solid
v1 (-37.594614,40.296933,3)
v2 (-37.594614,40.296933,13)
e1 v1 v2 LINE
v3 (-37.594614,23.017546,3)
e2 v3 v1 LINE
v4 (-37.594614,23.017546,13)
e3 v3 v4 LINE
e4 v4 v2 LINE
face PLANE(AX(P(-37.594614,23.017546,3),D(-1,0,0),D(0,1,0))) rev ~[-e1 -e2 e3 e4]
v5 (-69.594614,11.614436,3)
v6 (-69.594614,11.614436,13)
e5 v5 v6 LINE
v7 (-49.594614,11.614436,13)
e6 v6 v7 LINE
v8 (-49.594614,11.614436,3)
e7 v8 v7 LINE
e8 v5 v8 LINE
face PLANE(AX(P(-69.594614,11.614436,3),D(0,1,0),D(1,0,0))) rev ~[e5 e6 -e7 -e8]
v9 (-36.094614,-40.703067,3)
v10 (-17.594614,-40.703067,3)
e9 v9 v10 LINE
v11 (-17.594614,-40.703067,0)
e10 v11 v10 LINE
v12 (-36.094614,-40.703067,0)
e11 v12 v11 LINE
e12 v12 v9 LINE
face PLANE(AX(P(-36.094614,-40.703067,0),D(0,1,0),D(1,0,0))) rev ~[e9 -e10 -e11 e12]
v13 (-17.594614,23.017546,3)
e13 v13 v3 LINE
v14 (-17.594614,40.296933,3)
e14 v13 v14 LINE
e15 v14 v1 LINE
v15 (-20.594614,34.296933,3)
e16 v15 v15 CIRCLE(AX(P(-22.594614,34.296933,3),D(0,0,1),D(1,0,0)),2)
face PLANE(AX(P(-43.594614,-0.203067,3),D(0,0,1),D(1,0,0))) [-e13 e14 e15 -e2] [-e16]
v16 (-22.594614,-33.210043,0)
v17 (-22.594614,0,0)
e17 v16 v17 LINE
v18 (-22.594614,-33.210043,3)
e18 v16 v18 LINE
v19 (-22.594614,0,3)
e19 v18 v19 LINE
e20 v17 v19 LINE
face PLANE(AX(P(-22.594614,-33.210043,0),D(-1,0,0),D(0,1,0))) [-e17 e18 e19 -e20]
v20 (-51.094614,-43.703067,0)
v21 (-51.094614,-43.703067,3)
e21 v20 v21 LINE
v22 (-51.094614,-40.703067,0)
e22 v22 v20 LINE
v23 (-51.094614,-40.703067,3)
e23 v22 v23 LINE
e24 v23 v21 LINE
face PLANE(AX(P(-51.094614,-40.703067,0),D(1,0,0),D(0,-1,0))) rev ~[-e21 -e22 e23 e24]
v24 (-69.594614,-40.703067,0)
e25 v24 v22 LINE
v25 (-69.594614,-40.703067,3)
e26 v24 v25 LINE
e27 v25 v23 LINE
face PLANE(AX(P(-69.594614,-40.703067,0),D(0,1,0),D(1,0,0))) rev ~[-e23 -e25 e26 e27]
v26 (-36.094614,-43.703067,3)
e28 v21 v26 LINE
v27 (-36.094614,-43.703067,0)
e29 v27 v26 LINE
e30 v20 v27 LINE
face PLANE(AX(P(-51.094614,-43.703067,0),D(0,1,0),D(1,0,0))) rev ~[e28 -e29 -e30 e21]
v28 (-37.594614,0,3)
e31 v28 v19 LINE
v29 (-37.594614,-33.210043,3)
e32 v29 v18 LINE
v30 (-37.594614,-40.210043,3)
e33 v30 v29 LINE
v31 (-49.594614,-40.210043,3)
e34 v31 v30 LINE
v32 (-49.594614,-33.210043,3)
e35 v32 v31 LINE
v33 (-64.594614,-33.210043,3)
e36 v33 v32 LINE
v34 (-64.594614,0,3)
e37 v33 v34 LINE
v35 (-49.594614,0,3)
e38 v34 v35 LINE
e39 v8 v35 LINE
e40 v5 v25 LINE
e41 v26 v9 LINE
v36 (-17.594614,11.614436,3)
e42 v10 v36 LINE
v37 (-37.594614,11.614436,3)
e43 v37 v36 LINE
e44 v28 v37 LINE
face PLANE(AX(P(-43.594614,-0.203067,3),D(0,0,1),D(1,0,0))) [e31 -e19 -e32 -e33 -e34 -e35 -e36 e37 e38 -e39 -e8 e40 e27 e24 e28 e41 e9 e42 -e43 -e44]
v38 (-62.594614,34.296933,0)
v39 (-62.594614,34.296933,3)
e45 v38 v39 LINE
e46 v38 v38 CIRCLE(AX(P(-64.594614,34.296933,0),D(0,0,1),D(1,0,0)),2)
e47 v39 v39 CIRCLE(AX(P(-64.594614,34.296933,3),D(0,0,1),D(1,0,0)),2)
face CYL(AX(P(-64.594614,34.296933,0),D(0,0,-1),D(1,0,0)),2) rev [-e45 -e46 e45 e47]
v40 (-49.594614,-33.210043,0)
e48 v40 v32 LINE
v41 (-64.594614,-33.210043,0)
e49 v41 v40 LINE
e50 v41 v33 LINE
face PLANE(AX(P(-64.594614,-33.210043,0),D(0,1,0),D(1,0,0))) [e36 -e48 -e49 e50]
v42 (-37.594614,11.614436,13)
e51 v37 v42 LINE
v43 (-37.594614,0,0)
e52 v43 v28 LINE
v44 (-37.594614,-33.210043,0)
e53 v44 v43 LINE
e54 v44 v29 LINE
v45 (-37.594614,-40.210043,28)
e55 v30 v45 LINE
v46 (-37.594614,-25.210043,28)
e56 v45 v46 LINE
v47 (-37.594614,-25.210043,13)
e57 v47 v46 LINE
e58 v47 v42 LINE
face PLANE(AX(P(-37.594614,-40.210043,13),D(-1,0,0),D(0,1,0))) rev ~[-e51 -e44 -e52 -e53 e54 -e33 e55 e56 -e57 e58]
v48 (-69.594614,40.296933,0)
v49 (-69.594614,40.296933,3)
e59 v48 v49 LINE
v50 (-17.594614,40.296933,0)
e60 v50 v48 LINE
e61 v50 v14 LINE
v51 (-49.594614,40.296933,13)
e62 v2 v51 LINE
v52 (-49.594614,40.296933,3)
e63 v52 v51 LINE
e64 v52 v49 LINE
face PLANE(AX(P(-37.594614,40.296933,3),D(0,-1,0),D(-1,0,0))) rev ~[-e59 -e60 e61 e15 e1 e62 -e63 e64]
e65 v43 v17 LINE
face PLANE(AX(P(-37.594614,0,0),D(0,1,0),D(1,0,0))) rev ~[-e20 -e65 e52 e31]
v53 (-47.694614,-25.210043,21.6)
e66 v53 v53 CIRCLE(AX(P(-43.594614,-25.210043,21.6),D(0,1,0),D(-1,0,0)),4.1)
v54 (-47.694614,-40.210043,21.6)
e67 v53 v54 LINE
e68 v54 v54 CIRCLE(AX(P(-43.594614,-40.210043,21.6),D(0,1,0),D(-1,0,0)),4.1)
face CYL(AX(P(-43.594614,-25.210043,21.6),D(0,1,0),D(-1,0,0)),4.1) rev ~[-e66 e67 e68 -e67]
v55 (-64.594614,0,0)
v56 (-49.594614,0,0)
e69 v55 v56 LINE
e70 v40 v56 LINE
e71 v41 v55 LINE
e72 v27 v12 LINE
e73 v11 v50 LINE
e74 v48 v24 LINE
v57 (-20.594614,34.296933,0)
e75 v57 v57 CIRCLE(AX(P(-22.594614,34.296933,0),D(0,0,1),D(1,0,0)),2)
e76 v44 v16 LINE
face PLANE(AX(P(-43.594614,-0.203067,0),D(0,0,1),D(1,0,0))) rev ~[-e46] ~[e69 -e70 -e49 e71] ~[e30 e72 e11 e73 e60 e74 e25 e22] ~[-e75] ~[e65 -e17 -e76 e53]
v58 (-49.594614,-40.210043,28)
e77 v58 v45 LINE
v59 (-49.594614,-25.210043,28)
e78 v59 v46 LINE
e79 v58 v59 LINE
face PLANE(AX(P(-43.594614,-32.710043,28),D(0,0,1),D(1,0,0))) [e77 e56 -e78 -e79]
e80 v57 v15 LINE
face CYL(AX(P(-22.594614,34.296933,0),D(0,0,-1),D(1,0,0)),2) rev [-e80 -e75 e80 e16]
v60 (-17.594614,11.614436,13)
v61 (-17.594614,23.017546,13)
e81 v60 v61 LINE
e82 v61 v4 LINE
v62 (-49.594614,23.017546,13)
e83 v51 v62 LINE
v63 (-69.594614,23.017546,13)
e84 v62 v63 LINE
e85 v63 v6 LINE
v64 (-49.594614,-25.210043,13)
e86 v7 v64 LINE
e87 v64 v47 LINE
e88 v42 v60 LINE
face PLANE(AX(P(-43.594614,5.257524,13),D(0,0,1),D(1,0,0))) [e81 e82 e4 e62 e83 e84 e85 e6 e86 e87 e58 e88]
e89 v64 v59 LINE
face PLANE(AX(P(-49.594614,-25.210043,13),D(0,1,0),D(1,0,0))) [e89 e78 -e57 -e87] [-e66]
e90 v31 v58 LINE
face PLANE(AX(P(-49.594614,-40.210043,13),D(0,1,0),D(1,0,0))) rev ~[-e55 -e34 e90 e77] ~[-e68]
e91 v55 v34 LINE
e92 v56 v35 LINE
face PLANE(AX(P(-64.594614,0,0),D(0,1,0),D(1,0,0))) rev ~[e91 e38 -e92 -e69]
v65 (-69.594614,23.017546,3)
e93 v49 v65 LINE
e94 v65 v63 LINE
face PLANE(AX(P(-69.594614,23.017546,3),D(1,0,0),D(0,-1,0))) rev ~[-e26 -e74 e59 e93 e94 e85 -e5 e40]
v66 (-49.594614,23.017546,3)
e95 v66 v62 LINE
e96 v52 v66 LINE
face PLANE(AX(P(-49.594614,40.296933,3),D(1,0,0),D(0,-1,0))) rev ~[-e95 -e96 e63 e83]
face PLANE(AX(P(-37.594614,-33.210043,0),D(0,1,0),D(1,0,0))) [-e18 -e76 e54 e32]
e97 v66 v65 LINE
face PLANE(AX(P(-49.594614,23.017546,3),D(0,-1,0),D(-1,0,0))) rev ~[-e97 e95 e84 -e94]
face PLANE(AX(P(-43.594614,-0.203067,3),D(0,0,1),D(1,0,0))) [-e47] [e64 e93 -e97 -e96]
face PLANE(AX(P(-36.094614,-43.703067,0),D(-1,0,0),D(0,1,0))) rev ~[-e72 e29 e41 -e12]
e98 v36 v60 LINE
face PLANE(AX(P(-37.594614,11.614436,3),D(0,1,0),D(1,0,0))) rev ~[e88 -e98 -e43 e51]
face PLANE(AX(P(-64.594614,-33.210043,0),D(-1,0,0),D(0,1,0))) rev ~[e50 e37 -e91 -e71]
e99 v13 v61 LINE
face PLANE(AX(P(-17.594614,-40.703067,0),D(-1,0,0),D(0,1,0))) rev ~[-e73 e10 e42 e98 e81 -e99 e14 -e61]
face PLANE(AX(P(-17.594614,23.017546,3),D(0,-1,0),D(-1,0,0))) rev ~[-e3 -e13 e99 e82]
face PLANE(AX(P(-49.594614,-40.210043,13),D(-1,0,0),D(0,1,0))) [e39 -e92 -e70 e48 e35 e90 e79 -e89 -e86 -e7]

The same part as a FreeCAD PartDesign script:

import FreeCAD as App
import Part
import Sketcher
from FreeCAD import Vector
Q = App.Units.Quantity


def add_polygon(sketch, points):
    """Adds a closed chain of lines whose ends are joined by coincident constraints."""
    first, n = sketch.GeometryCount, len(points)
    for a, b in zip(points, points[1:] + points[:1]):
        sketch.addGeometry(Part.LineSegment(App.Vector(*a, 0), App.Vector(*b, 0)), False)
    for i in range(n):
        sketch.addConstraint(Sketcher.Constraint("Coincident", first + i, 2, first + (i + 1) % n, 1))

doc = App.newDocument("Part")
body = doc.addObject("PartDesign::Body", "Body")

# Sketch on XY plane
sketch1 = body.newObject("Sketcher::SketchObject", "Sketch")
sketch1.AttachmentSupport = (doc.getObject("XY_Plane"), [""])
sketch1.MapMode = "FlatFace"
add_polygon(sketch1, [(-17.6, -40.7), (-17.6, 40.3), (-69.6, 40.3), (-69.6, -40.7), (-51.1, -40.7), (-51.1, -43.7), (-36.1, -43.7), (-36.1, -40.7)])  # lines 0-7
add_polygon(sketch1, [(-49.6, -33.2), (-64.6, -33.2), (-64.6, 0), (-49.6, 0)])  # lines 8-11
add_polygon(sketch1, [(-22.6, -33.2), (-37.6, -33.2), (-37.6, 0), (-22.6, 0)])  # lines 12-15
sketch1.addGeometry(Part.Circle(Vector(-64.6, 34.3, 0), Vector(0, 0, 1), 2), False)  # 16
sketch1.addGeometry(Part.Circle(Vector(-22.6, 34.3, 0), Vector(0, 0, 1), 2), False)  # 17
sketch1.addConstraint([
    Sketcher.Constraint("Vertical", 0),
    Sketcher.Constraint("Horizontal", 1),
    Sketcher.Constraint("Vertical", 2),
    Sketcher.Constraint("Horizontal", 3),
    Sketcher.Constraint("Vertical", 4),
    Sketcher.Constraint("Horizontal", 5),
    Sketcher.Constraint("Vertical", 6),
    Sketcher.Constraint("Horizontal", 7),
    Sketcher.Constraint("Horizontal", 8),
    Sketcher.Constraint("Vertical", 9),
    Sketcher.Constraint("Horizontal", 10),
    Sketcher.Constraint("Vertical", 11),
    Sketcher.Constraint("Horizontal", 12),
    Sketcher.Constraint("Vertical", 13),
    Sketcher.Constraint("Horizontal", 14),
    Sketcher.Constraint("Vertical", 15),
    Sketcher.Constraint("Equal", 16, 17),
    Sketcher.Constraint("PointOnObject", 9, 2, -1),
    Sketcher.Constraint("PointOnObject", 13, 2, -1),
    Sketcher.Constraint("Horizontal", 16, 3, 17, 3),
    Sketcher.Constraint("Horizontal", 3, 2, 6, 2),
    Sketcher.Constraint("Horizontal", 11, 2, 12, 2),
    Sketcher.Constraint("Vertical", 16, 3, 8, 2),
    Sketcher.Constraint("Vertical", 17, 3, 14, 2),
    Sketcher.Constraint("Equal", 3, 7),
    Sketcher.Constraint("Equal", 5, 8),
    Sketcher.Constraint("Equal", 10, 12),
    Sketcher.Constraint("Diameter", 16, Q("4 mm")),
    Sketcher.Constraint("DistanceX", 1, 2, 1, 1, Q("52 mm")),
    Sketcher.Constraint("DistanceX", 5, 1, 5, 2, Q("15 mm")),
    Sketcher.Constraint("DistanceY", 0, 1, 0, 2, Q("81 mm")),
    Sketcher.Constraint("DistanceY", 4, 2, 4, 1, Q("3 mm")),
    Sketcher.Constraint("DistanceX", 16, 3, 17, 3, Q("42 mm")),
    Sketcher.Constraint("DistanceX", 17, 3, 0, 2, Q("5 mm")),
    Sketcher.Constraint("DistanceY", 17, 3, 0, 2, Q("6 mm")),
    Sketcher.Constraint("DistanceY", 9, 1, 9, 2, Q("33.210043 mm")),
    Sketcher.Constraint("DistanceX", 16, 3, -1, 1, Q("64.594614 mm")),
    Sketcher.Constraint("DistanceY", -1, 1, 16, 3, Q("34.296933 mm")),
])
pad1 = body.newObject("PartDesign::Pad", "Pad")
pad1.Profile = sketch1
pad1.Length = 3

# Sketch on XY plane
sketch2 = body.newObject("Sketcher::SketchObject", "Sketch001")
sketch2.AttachmentSupport = (doc.getObject("XY_Plane"), [""])
sketch2.MapMode = "FlatFace"
sketch2.AttachmentOffset = App.Placement(Vector(0, 0, 3), App.Rotation())
add_polygon(sketch2, [(-50, 12), (-50, -40), (-38, -40), (-38, 12), (-18, 12), (-18, 23), (-38, 23), (-38, 40), (-50, 40), (-50, 23), (-70, 23), (-70, 12)])  # lines 0-11
sketch2.addConstraint([
    Sketcher.Constraint("Vertical", 0),
    Sketcher.Constraint("Horizontal", 1),
    Sketcher.Constraint("Vertical", 2),
    Sketcher.Constraint("Horizontal", 3),
    Sketcher.Constraint("Vertical", 4),
    Sketcher.Constraint("Horizontal", 5),
    Sketcher.Constraint("Vertical", 6),
    Sketcher.Constraint("Horizontal", 7),
    Sketcher.Constraint("Vertical", 8),
    Sketcher.Constraint("Horizontal", 9),
    Sketcher.Constraint("Vertical", 10),
    Sketcher.Constraint("Horizontal", 11),
    Sketcher.Constraint("Horizontal", 5, 2, 8, 2),
    Sketcher.Constraint("Horizontal", 3, 2, 10, 2),
    Sketcher.Constraint("Vertical", 2, 2, 5, 2),
    Sketcher.Constraint("Vertical", 0, 2, 7, 2),
    Sketcher.Constraint("Equal", 5, 9),
    Sketcher.Constraint("DistanceX", 1, 1, 1, 2, Q("12 mm")),
    Sketcher.Constraint("DistanceX", 3, 1, 3, 2, Q("20 mm")),
    Sketcher.Constraint("DistanceY", 0, 2, 0, 1, Q("51.824479 mm")),
    Sketcher.Constraint("DistanceY", 4, 1, 4, 2, Q("11.40311 mm")),
    Sketcher.Constraint("DistanceY", 6, 1, 6, 2, Q("17.279387 mm")),
    Sketcher.Constraint("DistanceX", 0, 2, -1, 1, Q("49.594614 mm")),
    Sketcher.Constraint("DistanceY", 0, 2, -1, 1, Q("40.210043 mm")),
])
pad2 = body.newObject("PartDesign::Pad", "Pad001")
pad2.Profile = sketch2
pad2.Length = 10

# Sketch on XY plane
sketch3 = body.newObject("Sketcher::SketchObject", "Sketch002")
sketch3.AttachmentSupport = (doc.getObject("XY_Plane"), [""])
sketch3.MapMode = "FlatFace"
sketch3.AttachmentOffset = App.Placement(Vector(0, 0, 13), App.Rotation())
add_polygon(sketch3, [(-50, -25), (-50, -40), (-38, -40), (-38, -25)])  # lines 0-3
sketch3.addConstraint([
    Sketcher.Constraint("Vertical", 0),
    Sketcher.Constraint("Horizontal", 1),
    Sketcher.Constraint("Vertical", 2),
    Sketcher.Constraint("Horizontal", 3),
    Sketcher.Constraint("DistanceX", 1, 1, 1, 2, Q("12 mm")),
    Sketcher.Constraint("DistanceY", 0, 2, 0, 1, Q("15 mm")),
    Sketcher.Constraint("DistanceX", 0, 2, -1, 1, Q("49.594614 mm")),
    Sketcher.Constraint("DistanceY", 0, 2, -1, 1, Q("40.210043 mm")),
])
pad3 = body.newObject("PartDesign::Pad", "Pad002")
pad3.Profile = sketch3
pad3.Length = 15

# Sketch on XZ plane
sketch4 = body.newObject("Sketcher::SketchObject", "Sketch003")
sketch4.AttachmentSupport = (doc.getObject("XZ_Plane"), [""])
sketch4.MapMode = "FlatFace"
sketch4.AttachmentOffset = App.Placement(Vector(0, 0, 25.210043), App.Rotation())
sketch4.addGeometry(Part.Circle(Vector(-43.6, 21.6, 0), Vector(0, 0, 1), 4.1), False)
sketch4.addConstraint([
    Sketcher.Constraint("Diameter", 0, Q("8.2 mm")),
    Sketcher.Constraint("DistanceY", -1, 1, 0, 3, Q("21.6 mm")),
    Sketcher.Constraint("DistanceX", 0, 3, -1, 1, Q("43.594614 mm")),
])
pocket1 = body.newObject("PartDesign::Pocket", "Pocket")
pocket1.Profile = sketch4
pocket1.Length = 25
pocket1.Reversed = True

doc.recompute()
